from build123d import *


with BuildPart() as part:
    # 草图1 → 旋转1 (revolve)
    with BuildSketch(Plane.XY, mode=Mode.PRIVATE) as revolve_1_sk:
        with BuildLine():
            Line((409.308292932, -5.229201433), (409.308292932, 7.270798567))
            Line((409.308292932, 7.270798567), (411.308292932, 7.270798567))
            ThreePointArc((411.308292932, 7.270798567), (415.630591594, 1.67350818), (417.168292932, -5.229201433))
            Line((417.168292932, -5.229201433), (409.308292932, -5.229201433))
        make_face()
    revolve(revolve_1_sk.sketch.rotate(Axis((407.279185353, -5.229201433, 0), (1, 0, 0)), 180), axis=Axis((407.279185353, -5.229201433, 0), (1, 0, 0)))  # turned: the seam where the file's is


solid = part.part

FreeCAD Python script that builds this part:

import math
import FreeCAD as App
import Part
import Sketcher

V = App.Vector
Q = App.Units.Quantity

doc = App.newDocument("Part")
body = doc.addObject("PartDesign::Body", "Body")

sketch1 = body.newObject("Sketcher::SketchObject", "Sketch")
sketch1.AttachmentSupport = (doc.getObject("XY_Plane"), [""])
sketch1.MapMode = "FlatFace"
sketch1.addGeometry([
    Part.LineSegment(V(409.3, 7.3, 0), V(409.3, -5.2, 0)),
    Part.LineSegment(V(409.3, -5.2, 0), V(417.2, -5.2, 0)),
    Part.ArcOfCircle(Part.Circle(V(400.9, -5.2, 0), V(0, 0, 1), 16.3), math.radians(0), math.radians(50)),
    Part.LineSegment(V(411.3, 7.3, 0), V(409.3, 7.3, 0)),
], False)
sketch1.addGeometry(Part.LineSegment(V(400.9, -5.2, 0), V(417.2, -5.2, 0)), True)
sketch1.addConstraint([
    Sketcher.Constraint("Coincident", 0, 2, 1, 1),
    Sketcher.Constraint("Coincident", 1, 2, 2, 1),
    Sketcher.Constraint("Coincident", 2, 2, 3, 1),
    Sketcher.Constraint("Coincident", 3, 2, 0, 1),
    Sketcher.Constraint("Vertical", 0),
    Sketcher.Constraint("Horizontal", 1),
    Sketcher.Constraint("Horizontal", 3),
    Sketcher.Constraint("Horizontal", 4),
    Sketcher.Constraint("Coincident", 4, 1, 2, 3),
    Sketcher.Constraint("Coincident", 4, 2, 1, 2),
    Sketcher.Constraint("DistanceX", 3, 2, 3, 1, Q("2 mm")),
    Sketcher.Constraint("DistanceY", 0, 2, 0, 1, Q("12.5 mm")),
    Sketcher.Constraint("DistanceX", 1, 1, 1, 2, Q("7.86 mm")),
    Sketcher.Constraint("DistanceY", 2, 3, -1, 1, Q("5.229201 mm")),
    Sketcher.Constraint("DistanceX", -1, 1, 2, 3, Q("400.906382 mm")),
])
revolution = body.newObject("PartDesign::Revolution", "Revolution")
revolution.Profile = sketch1
revolution.ReferenceAxis = (sketch1, ["Axis0"])
revolution.Angle = 360

doc.recompute()
